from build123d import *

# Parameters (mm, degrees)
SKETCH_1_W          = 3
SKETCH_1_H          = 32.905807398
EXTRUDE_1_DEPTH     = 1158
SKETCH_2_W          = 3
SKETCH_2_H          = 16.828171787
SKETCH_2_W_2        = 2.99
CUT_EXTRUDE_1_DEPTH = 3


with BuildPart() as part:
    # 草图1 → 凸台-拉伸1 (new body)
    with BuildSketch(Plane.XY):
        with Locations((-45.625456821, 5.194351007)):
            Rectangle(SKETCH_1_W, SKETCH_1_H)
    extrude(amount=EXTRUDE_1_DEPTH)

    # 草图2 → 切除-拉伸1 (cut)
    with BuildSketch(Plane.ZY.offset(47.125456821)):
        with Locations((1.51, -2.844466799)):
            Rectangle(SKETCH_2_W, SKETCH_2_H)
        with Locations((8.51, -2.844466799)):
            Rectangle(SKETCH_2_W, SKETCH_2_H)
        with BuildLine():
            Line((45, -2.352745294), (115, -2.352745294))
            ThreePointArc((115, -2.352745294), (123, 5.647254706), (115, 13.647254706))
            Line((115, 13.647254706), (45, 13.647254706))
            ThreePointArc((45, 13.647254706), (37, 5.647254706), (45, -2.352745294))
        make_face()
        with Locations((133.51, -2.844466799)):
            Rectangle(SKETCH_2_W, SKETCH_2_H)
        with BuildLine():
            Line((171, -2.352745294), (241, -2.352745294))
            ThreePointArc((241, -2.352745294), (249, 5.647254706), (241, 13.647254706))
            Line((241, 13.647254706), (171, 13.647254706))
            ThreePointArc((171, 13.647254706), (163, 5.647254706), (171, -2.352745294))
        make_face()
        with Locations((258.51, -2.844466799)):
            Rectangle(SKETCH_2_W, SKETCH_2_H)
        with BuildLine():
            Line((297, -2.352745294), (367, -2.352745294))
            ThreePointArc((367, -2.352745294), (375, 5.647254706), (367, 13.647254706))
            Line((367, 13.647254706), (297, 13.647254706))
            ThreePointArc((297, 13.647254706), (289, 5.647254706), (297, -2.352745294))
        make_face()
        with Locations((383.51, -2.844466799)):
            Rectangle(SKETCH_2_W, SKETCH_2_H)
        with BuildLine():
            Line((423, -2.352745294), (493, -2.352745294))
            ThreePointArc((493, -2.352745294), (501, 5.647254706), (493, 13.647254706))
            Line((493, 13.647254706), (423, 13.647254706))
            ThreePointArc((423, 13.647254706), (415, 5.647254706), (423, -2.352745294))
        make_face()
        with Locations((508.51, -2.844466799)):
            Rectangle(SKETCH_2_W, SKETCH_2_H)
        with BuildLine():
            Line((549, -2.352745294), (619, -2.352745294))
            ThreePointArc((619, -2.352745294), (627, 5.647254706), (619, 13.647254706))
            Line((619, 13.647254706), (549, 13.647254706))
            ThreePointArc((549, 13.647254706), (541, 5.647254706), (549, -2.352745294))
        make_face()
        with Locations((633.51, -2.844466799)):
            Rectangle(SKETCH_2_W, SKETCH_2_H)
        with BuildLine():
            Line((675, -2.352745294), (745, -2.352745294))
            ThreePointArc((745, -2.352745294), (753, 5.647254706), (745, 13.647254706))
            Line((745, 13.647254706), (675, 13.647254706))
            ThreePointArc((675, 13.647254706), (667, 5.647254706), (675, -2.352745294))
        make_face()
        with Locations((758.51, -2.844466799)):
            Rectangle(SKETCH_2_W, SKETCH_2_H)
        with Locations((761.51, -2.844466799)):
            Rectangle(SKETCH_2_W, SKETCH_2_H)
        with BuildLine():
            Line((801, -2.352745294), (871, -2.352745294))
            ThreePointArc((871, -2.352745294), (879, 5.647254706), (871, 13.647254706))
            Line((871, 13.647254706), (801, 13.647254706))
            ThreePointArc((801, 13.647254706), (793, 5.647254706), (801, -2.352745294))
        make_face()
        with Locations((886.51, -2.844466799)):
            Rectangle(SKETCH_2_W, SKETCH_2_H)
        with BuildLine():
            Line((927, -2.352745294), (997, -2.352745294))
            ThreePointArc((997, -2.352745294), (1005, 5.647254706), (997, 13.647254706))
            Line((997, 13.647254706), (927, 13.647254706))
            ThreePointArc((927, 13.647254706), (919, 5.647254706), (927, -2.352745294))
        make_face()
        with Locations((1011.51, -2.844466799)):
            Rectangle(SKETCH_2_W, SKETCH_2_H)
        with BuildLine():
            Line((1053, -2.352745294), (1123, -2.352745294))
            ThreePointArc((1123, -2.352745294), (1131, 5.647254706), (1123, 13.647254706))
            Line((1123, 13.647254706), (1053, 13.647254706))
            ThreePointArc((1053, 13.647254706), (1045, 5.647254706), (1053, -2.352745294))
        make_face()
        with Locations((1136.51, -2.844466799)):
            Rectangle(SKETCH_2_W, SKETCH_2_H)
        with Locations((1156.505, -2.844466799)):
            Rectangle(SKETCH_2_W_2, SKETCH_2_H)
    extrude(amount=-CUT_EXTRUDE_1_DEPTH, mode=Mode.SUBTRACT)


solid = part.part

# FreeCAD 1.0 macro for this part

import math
import FreeCAD as App
import Part
import Sketcher

doc = App.newDocument("Part")
params = doc.addObject("Spreadsheet::Sheet", "Params")
for row, (alias, value) in enumerate([
    ("sketch1_width", "3 mm"),
    ("pad1_length", "1158 mm"),
    ("sketch2_radius", "8 mm"),
    ("sketch2_height", "3 mm"),
    ("sketch2_height2", "70 mm"),
    ("sketch2_height3", "6 mm"),
    ("sketch2_height4", "2.99 mm"),
    ("pocket1_length", "3 mm"),
], start=1):
    params.set(f"A{row}", alias)
    params.set(f"B{row}", "=" + value)
    params.setAlias(f"B{row}", alias)

body = doc.addObject("PartDesign::Body", "Body")

# Sketch on XY plane
sketch1 = body.newObject("Sketcher::SketchObject", "Sketch")
sketch1.AttachmentSupport = (doc.getObject("XY_Plane"), [""])
sketch1.MapMode = "FlatFace"
sketch1.addGeometry(Part.LineSegment(App.Vector(-47.1, 21.6, 0), App.Vector(-47.1, -11.3, 0)), False)
sketch1.addGeometry(Part.LineSegment(App.Vector(-47.1, -11.3, 0), App.Vector(-44.1, -11.3, 0)), False)
sketch1.addGeometry(Part.LineSegment(App.Vector(-44.1, -11.3, 0), App.Vector(-44.1, 21.6, 0)), False)
sketch1.addGeometry(Part.LineSegment(App.Vector(-44.1, 21.6, 0), App.Vector(-47.1, 21.6, 0)), False)
sketch1.addConstraint(Sketcher.Constraint("Coincident", 0, 2, 1, 1))
sketch1.addConstraint(Sketcher.Constraint("Coincident", 1, 2, 2, 1))
sketch1.addConstraint(Sketcher.Constraint("Coincident", 2, 2, 3, 1))
sketch1.addConstraint(Sketcher.Constraint("Coincident", 3, 2, 0, 1))
sketch1.addConstraint(Sketcher.Constraint("Vertical", 0))
sketch1.addConstraint(Sketcher.Constraint("Horizontal", 1))
sketch1.addConstraint(Sketcher.Constraint("Vertical", 2))
sketch1.addConstraint(Sketcher.Constraint("Horizontal", 3))
sketch1.addConstraint(Sketcher.Constraint("DistanceX", 1, 1, 1, 2, 3.0))
sketch1.addConstraint(Sketcher.Constraint("DistanceY", 0, 2, 0, 1, 32.905807))
sketch1.addConstraint(Sketcher.Constraint("DistanceX", 0, 2, -1, 1, 47.125457))
sketch1.addConstraint(Sketcher.Constraint("DistanceY", 0, 2, -1, 1, 11.258553))
sketch1.setExpression("Constraints[8]", "Params.sketch1_width")
pad1 = body.newObject("PartDesign::Pad", "Pad")
pad1.Profile = sketch1
pad1.setExpression("Length", "Params.pad1_length")

# Sketch on YZ plane
sketch2 = body.newObject("Sketcher::SketchObject", "Sketch001")
sketch2.AttachmentSupport = (doc.getObject("YZ_Plane"), [""])
sketch2.MapMode = "FlatFace"
sketch2.AttachmentOffset = App.Placement(App.Vector(0, 0, -47.125457), App.Rotation())
sketch2.addGeometry(Part.LineSegment(App.Vector(5.6, 0, 0), App.Vector(-11.3, 0, 0)), False)
sketch2.addGeometry(Part.LineSegment(App.Vector(-11.3, 0, 0), App.Vector(-11.3, 3, 0)), False)
sketch2.addGeometry(Part.LineSegment(App.Vector(-11.3, 3, 0), App.Vector(5.6, 3, 0)), False)
sketch2.addGeometry(Part.LineSegment(App.Vector(5.6, 3, 0), App.Vector(5.6, 0, 0)), False)
sketch2.addGeometry(Part.LineSegment(App.Vector(5.6, 7, 0), App.Vector(-11.3, 7, 0)), False)
sketch2.addGeometry(Part.LineSegment(App.Vector(-11.3, 7, 0), App.Vector(-11.3, 10, 0)), False)
sketch2.addGeometry(Part.LineSegment(App.Vector(-11.3, 10, 0), App.Vector(5.6, 10, 0)), False)
sketch2.addGeometry(Part.LineSegment(App.Vector(5.6, 10, 0), App.Vector(5.6, 7, 0)), False)
sketch2.addGeometry(Part.LineSegment(App.Vector(-2.4, 45, 0), App.Vector(-2.4, 115, 0)), False)
sketch2.addGeometry(Part.ArcOfCircle(Part.Circle(App.Vector(5.6, 115, 0), App.Vector(0, 0, 1), 8), math.radians(0), math.radians(180)), False)
sketch2.addGeometry(Part.LineSegment(App.Vector(13.6, 115, 0), App.Vector(13.6, 45, 0)), False)
sketch2.addGeometry(Part.ArcOfCircle(Part.Circle(App.Vector(5.6, 45, 0), App.Vector(0, 0, 1), 8), math.radians(180), math.radians(360)), False)
sketch2.addGeometry(Part.LineSegment(App.Vector(5.6, 132, 0), App.Vector(-11.3, 132, 0)), False)
sketch2.addGeometry(Part.LineSegment(App.Vector(-11.3, 132, 0), App.Vector(-11.3, 135, 0)), False)
sketch2.addGeometry(Part.LineSegment(App.Vector(-11.3, 135, 0), App.Vector(5.6, 135, 0)), False)
sketch2.addGeometry(Part.LineSegment(App.Vector(5.6, 135, 0), App.Vector(5.6, 132, 0)), False)
sketch2.addGeometry(Part.LineSegment(App.Vector(-2.4, 171, 0), App.Vector(-2.4, 241, 0)), False)
sketch2.addGeometry(Part.ArcOfCircle(Part.Circle(App.Vector(5.6, 241, 0), App.Vector(0, 0, 1), 8), math.radians(0), math.radians(180)), False)
sketch2.addGeometry(Part.LineSegment(App.Vector(13.6, 241, 0), App.Vector(13.6, 171, 0)), False)
sketch2.addGeometry(Part.ArcOfCircle(Part.Circle(App.Vector(5.6, 171, 0), App.Vector(0, 0, 1), 8), math.radians(180), math.radians(360)), False)
sketch2.addGeometry(Part.LineSegment(App.Vector(5.6, 257, 0), App.Vector(-11.3, 257, 0)), False)
sketch2.addGeometry(Part.LineSegment(App.Vector(-11.3, 257, 0), App.Vector(-11.3, 260, 0)), False)
sketch2.addGeometry(Part.LineSegment(App.Vector(-11.3, 260, 0), App.Vector(5.6, 260, 0)), False)
sketch2.addGeometry(Part.LineSegment(App.Vector(5.6, 260, 0), App.Vector(5.6, 257, 0)), False)
sketch2.addGeometry(Part.LineSegment(App.Vector(-2.4, 297, 0), App.Vector(-2.4, 367, 0)), False)
sketch2.addGeometry(Part.ArcOfCircle(Part.Circle(App.Vector(5.6, 367, 0), App.Vector(0, 0, 1), 8), math.radians(0), math.radians(180)), False)
sketch2.addGeometry(Part.LineSegment(App.Vector(13.6, 367, 0), App.Vector(13.6, 297, 0)), False)
sketch2.addGeometry(Part.ArcOfCircle(Part.Circle(App.Vector(5.6, 297, 0), App.Vector(0, 0, 1), 8), math.radians(180), math.radians(360)), False)
sketch2.addGeometry(Part.LineSegment(App.Vector(5.6, 382, 0), App.Vector(-11.3, 382, 0)), False)
sketch2.addGeometry(Part.LineSegment(App.Vector(-11.3, 382, 0), App.Vector(-11.3, 385, 0)), False)
sketch2.addGeometry(Part.LineSegment(App.Vector(-11.3, 385, 0), App.Vector(5.6, 385, 0)), False)
sketch2.addGeometry(Part.LineSegment(App.Vector(5.6, 385, 0), App.Vector(5.6, 382, 0)), False)
sketch2.addGeometry(Part.LineSegment(App.Vector(-2.4, 423, 0), App.Vector(-2.4, 493, 0)), False)
sketch2.addGeometry(Part.ArcOfCircle(Part.Circle(App.Vector(5.6, 493, 0), App.Vector(0, 0, 1), 8), math.radians(0), math.radians(180)), False)
sketch2.addGeometry(Part.LineSegment(App.Vector(13.6, 493, 0), App.Vector(13.6, 423, 0)), False)
sketch2.addGeometry(Part.ArcOfCircle(Part.Circle(App.Vector(5.6, 423, 0), App.Vector(0, 0, 1), 8), math.radians(180), math.radians(360)), False)
sketch2.addGeometry(Part.LineSegment(App.Vector(5.6, 507, 0), App.Vector(-11.3, 507, 0)), False)
sketch2.addGeometry(Part.LineSegment(App.Vector(-11.3, 507, 0), App.Vector(-11.3, 510, 0)), False)
sketch2.addGeometry(Part.LineSegment(App.Vector(-11.3, 510, 0), App.Vector(5.6, 510, 0)), False)
sketch2.addGeometry(Part.LineSegment(App.Vector(5.6, 510, 0), App.Vector(5.6, 507, 0)), False)
sketch2.addGeometry(Part.LineSegment(App.Vector(-2.4, 549, 0), App.Vector(-2.4, 619, 0)), False)
sketch2.addGeometry(Part.ArcOfCircle(Part.Circle(App.Vector(5.6, 619, 0), App.Vector(0, 0, 1), 8), math.radians(0), math.radians(180)), False)
sketch2.addGeometry(Part.LineSegment(App.Vector(13.6, 619, 0), App.Vector(13.6, 549, 0)), False)
sketch2.addGeometry(Part.ArcOfCircle(Part.Circle(App.Vector(5.6, 549, 0), App.Vector(0, 0, 1), 8), math.radians(180), math.radians(360)), False)
sketch2.addGeometry(Part.LineSegment(App.Vector(5.6, 632, 0), App.Vector(-11.3, 632, 0)), False)
sketch2.addGeometry(Part.LineSegment(App.Vector(-11.3, 632, 0), App.Vector(-11.3, 635, 0)), False)
sketch2.addGeometry(Part.LineSegment(App.Vector(-11.3, 635, 0), App.Vector(5.6, 635, 0)), False)
sketch2.addGeometry(Part.LineSegment(App.Vector(5.6, 635, 0), App.Vector(5.6, 632, 0)), False)
sketch2.addGeometry(Part.LineSegment(App.Vector(-2.4, 675, 0), App.Vector(-2.4, 745, 0)), False)
sketch2.addGeometry(Part.ArcOfCircle(Part.Circle(App.Vector(5.6, 745, 0), App.Vector(0, 0, 1), 8), math.radians(0), math.radians(180)), False)
sketch2.addGeometry(Part.LineSegment(App.Vector(13.6, 745, 0), App.Vector(13.6, 675, 0)), False)
sketch2.addGeometry(Part.ArcOfCircle(Part.Circle(App.Vector(5.6, 675, 0), App.Vector(0, 0, 1), 8), math.radians(180), math.radians(360)), False)
sketch2.addGeometry(Part.LineSegment(App.Vector(5.6, 757, 0), App.Vector(-11.3, 757, 0)), False)
sketch2.addGeometry(Part.LineSegment(App.Vector(-11.3, 757, 0), App.Vector(-11.3, 763, 0)), False)
sketch2.addGeometry(Part.LineSegment(App.Vector(-11.3, 763, 0), App.Vector(5.6, 763, 0)), False)
sketch2.addGeometry(Part.LineSegment(App.Vector(5.6, 763, 0), App.Vector(5.6, 757, 0)), False)
sketch2.addGeometry(Part.LineSegment(App.Vector(-2.4, 801, 0), App.Vector(-2.4, 871, 0)), False)
sketch2.addGeometry(Part.ArcOfCircle(Part.Circle(App.Vector(5.6, 871, 0), App.Vector(0, 0, 1), 8), math.radians(0), math.radians(180)), False)
sketch2.addGeometry(Part.LineSegment(App.Vector(13.6, 871, 0), App.Vector(13.6, 801, 0)), False)
sketch2.addGeometry(Part.ArcOfCircle(Part.Circle(App.Vector(5.6, 801, 0), App.Vector(0, 0, 1), 8), math.radians(180), math.radians(360)), False)
sketch2.addGeometry(Part.LineSegment(App.Vector(5.6, 885, 0), App.Vector(-11.3, 885, 0)), False)
sketch2.addGeometry(Part.LineSegment(App.Vector(-11.3, 885, 0), App.Vector(-11.3, 888, 0)), False)
sketch2.addGeometry(Part.LineSegment(App.Vector(-11.3, 888, 0), App.Vector(5.6, 888, 0)), False)
sketch2.addGeometry(Part.LineSegment(App.Vector(5.6, 888, 0), App.Vector(5.6, 885, 0)), False)
sketch2.addGeometry(Part.LineSegment(App.Vector(-2.4, 927, 0), App.Vector(-2.4, 997, 0)), False)
sketch2.addGeometry(Part.ArcOfCircle(Part.Circle(App.Vector(5.6, 997, 0), App.Vector(0, 0, 1), 8), math.radians(0), math.radians(180)), False)
sketch2.addGeometry(Part.LineSegment(App.Vector(13.6, 997, 0), App.Vector(13.6, 927, 0)), False)
sketch2.addGeometry(Part.ArcOfCircle(Part.Circle(App.Vector(5.6, 927, 0), App.Vector(0, 0, 1), 8), math.radians(180), math.radians(360)), False)
sketch2.addGeometry(Part.LineSegment(App.Vector(5.6, 1010, 0), App.Vector(-11.3, 1010, 0)), False)
sketch2.addGeometry(Part.LineSegment(App.Vector(-11.3, 1010, 0), App.Vector(-11.3, 1013, 0)), False)
sketch2.addGeometry(Part.LineSegment(App.Vector(-11.3, 1013, 0), App.Vector(5.6, 1013, 0)), False)
sketch2.addGeometry(Part.LineSegment(App.Vector(5.6, 1013, 0), App.Vector(5.6, 1010, 0)), False)
sketch2.addGeometry(Part.LineSegment(App.Vector(-2.4, 1053, 0), App.Vector(-2.4, 1123, 0)), False)
sketch2.addGeometry(Part.ArcOfCircle(Part.Circle(App.Vector(5.6, 1123, 0), App.Vector(0, 0, 1), 8), math.radians(0), math.radians(180)), False)
sketch2.addGeometry(Part.LineSegment(App.Vector(13.6, 1123, 0), App.Vector(13.6, 1053, 0)), False)
sketch2.addGeometry(Part.ArcOfCircle(Part.Circle(App.Vector(5.6, 1053, 0), App.Vector(0, 0, 1), 8), math.radians(180), math.radians(360)), False)
sketch2.addGeometry(Part.LineSegment(App.Vector(5.6, 1135, 0), App.Vector(-11.3, 1135, 0)), False)
sketch2.addGeometry(Part.LineSegment(App.Vector(-11.3, 1135, 0), App.Vector(-11.3, 1138, 0)), False)
sketch2.addGeometry(Part.LineSegment(App.Vector(-11.3, 1138, 0), App.Vector(5.6, 1138, 0)), False)
sketch2.addGeometry(Part.LineSegment(App.Vector(5.6, 1138, 0), App.Vector(5.6, 1135, 0)), False)
sketch2.addGeometry(Part.LineSegment(App.Vector(5.6, 1155, 0), App.Vector(-11.3, 1155, 0)), False)
sketch2.addGeometry(Part.LineSegment(App.Vector(-11.3, 1155, 0), App.Vector(-11.3, 1158, 0)), False)
sketch2.addGeometry(Part.LineSegment(App.Vector(-11.3, 1158, 0), App.Vector(5.6, 1158, 0)), False)
sketch2.addGeometry(Part.LineSegment(App.Vector(5.6, 1158, 0), App.Vector(5.6, 1155, 0)), False)
sketch2.addConstraint(Sketcher.Constraint("Coincident", 0, 2, 1, 1))
sketch2.addConstraint(Sketcher.Constraint("Coincident", 1, 2, 2, 1))
sketch2.addConstraint(Sketcher.Constraint("Coincident", 2, 2, 3, 1))
sketch2.addConstraint(Sketcher.Constraint("Coincident", 3, 2, 0, 1))
sketch2.addConstraint(Sketcher.Constraint("Coincident", 4, 2, 5, 1))
sketch2.addConstraint(Sketcher.Constraint("Coincident", 5, 2, 6, 1))
sketch2.addConstraint(Sketcher.Constraint("Coincident", 6, 2, 7, 1))
sketch2.addConstraint(Sketcher.Constraint("Coincident", 7, 2, 4, 1))
sketch2.addConstraint(Sketcher.Constraint("Tangent", 8, 2, 9, 2))
sketch2.addConstraint(Sketcher.Constraint("Tangent", 9, 1, 10, 1))
sketch2.addConstraint(Sketcher.Constraint("Tangent", 10, 2, 11, 2))
sketch2.addConstraint(Sketcher.Constraint("Tangent", 11, 1, 8, 1))
sketch2.addConstraint(Sketcher.Constraint("Coincident", 12, 2, 13, 1))
sketch2.addConstraint(Sketcher.Constraint("Coincident", 13, 2, 14, 1))
sketch2.addConstraint(Sketcher.Constraint("Coincident", 14, 2, 15, 1))
sketch2.addConstraint(Sketcher.Constraint("Coincident", 15, 2, 12, 1))
sketch2.addConstraint(Sketcher.Constraint("Tangent", 16, 2, 17, 2))
sketch2.addConstraint(Sketcher.Constraint("Tangent", 17, 1, 18, 1))
sketch2.addConstraint(Sketcher.Constraint("Tangent", 18, 2, 19, 2))
sketch2.addConstraint(Sketcher.Constraint("Tangent", 19, 1, 16, 1))
sketch2.addConstraint(Sketcher.Constraint("Coincident", 20, 2, 21, 1))
sketch2.addConstraint(Sketcher.Constraint("Coincident", 21, 2, 22, 1))
sketch2.addConstraint(Sketcher.Constraint("Coincident", 22, 2, 23, 1))
sketch2.addConstraint(Sketcher.Constraint("Coincident", 23, 2, 20, 1))
sketch2.addConstraint(Sketcher.Constraint("Tangent", 24, 2, 25, 2))
sketch2.addConstraint(Sketcher.Constraint("Tangent", 25, 1, 26, 1))
sketch2.addConstraint(Sketcher.Constraint("Tangent", 26, 2, 27, 2))
sketch2.addConstraint(Sketcher.Constraint("Tangent", 27, 1, 24, 1))
sketch2.addConstraint(Sketcher.Constraint("Coincident", 28, 2, 29, 1))
sketch2.addConstraint(Sketcher.Constraint("Coincident", 29, 2, 30, 1))
sketch2.addConstraint(Sketcher.Constraint("Coincident", 30, 2, 31, 1))
sketch2.addConstraint(Sketcher.Constraint("Coincident", 31, 2, 28, 1))
sketch2.addConstraint(Sketcher.Constraint("Tangent", 32, 2, 33, 2))
sketch2.addConstraint(Sketcher.Constraint("Tangent", 33, 1, 34, 1))
sketch2.addConstraint(Sketcher.Constraint("Tangent", 34, 2, 35, 2))
sketch2.addConstraint(Sketcher.Constraint("Tangent", 35, 1, 32, 1))
sketch2.addConstraint(Sketcher.Constraint("Coincident", 36, 2, 37, 1))
sketch2.addConstraint(Sketcher.Constraint("Coincident", 37, 2, 38, 1))
sketch2.addConstraint(Sketcher.Constraint("Coincident", 38, 2, 39, 1))
sketch2.addConstraint(Sketcher.Constraint("Coincident", 39, 2, 36, 1))
sketch2.addConstraint(Sketcher.Constraint("Tangent", 40, 2, 41, 2))
sketch2.addConstraint(Sketcher.Constraint("Tangent", 41, 1, 42, 1))
sketch2.addConstraint(Sketcher.Constraint("Tangent", 42, 2, 43, 2))
sketch2.addConstraint(Sketcher.Constraint("Tangent", 43, 1, 40, 1))
sketch2.addConstraint(Sketcher.Constraint("Coincident", 44, 2, 45, 1))
sketch2.addConstraint(Sketcher.Constraint("Coincident", 45, 2, 46, 1))
sketch2.addConstraint(Sketcher.Constraint("Coincident", 46, 2, 47, 1))
sketch2.addConstraint(Sketcher.Constraint("Coincident", 47, 2, 44, 1))
sketch2.addConstraint(Sketcher.Constraint("Tangent", 48, 2, 49, 2))
sketch2.addConstraint(Sketcher.Constraint("Tangent", 49, 1, 50, 1))
sketch2.addConstraint(Sketcher.Constraint("Tangent", 50, 2, 51, 2))
sketch2.addConstraint(Sketcher.Constraint("Tangent", 51, 1, 48, 1))
sketch2.addConstraint(Sketcher.Constraint("Coincident", 52, 2, 53, 1))
sketch2.addConstraint(Sketcher.Constraint("Coincident", 53, 2, 54, 1))
sketch2.addConstraint(Sketcher.Constraint("Coincident", 54, 2, 55, 1))
sketch2.addConstraint(Sketcher.Constraint("Coincident", 55, 2, 52, 1))
sketch2.addConstraint(Sketcher.Constraint("Tangent", 56, 2, 57, 2))
sketch2.addConstraint(Sketcher.Constraint("Tangent", 57, 1, 58, 1))
sketch2.addConstraint(Sketcher.Constraint("Tangent", 58, 2, 59, 2))
sketch2.addConstraint(Sketcher.Constraint("Tangent", 59, 1, 56, 1))
sketch2.addConstraint(Sketcher.Constraint("Coincident", 60, 2, 61, 1))
sketch2.addConstraint(Sketcher.Constraint("Coincident", 61, 2, 62, 1))
sketch2.addConstraint(Sketcher.Constraint("Coincident", 62, 2, 63, 1))
sketch2.addConstraint(Sketcher.Constraint("Coincident", 63, 2, 60, 1))
sketch2.addConstraint(Sketcher.Constraint("Tangent", 64, 2, 65, 2))
sketch2.addConstraint(Sketcher.Constraint("Tangent", 65, 1, 66, 1))
sketch2.addConstraint(Sketcher.Constraint("Tangent", 66, 2, 67, 2))
sketch2.addConstraint(Sketcher.Constraint("Tangent", 67, 1, 64, 1))
sketch2.addConstraint(Sketcher.Constraint("Coincident", 68, 2, 69, 1))
sketch2.addConstraint(Sketcher.Constraint("Coincident", 69, 2, 70, 1))
sketch2.addConstraint(Sketcher.Constraint("Coincident", 70, 2, 71, 1))
sketch2.addConstraint(Sketcher.Constraint("Coincident", 71, 2, 68, 1))
sketch2.addConstraint(Sketcher.Constraint("Tangent", 72, 2, 73, 2))
sketch2.addConstraint(Sketcher.Constraint("Tangent", 73, 1, 74, 1))
sketch2.addConstraint(Sketcher.Constraint("Tangent", 74, 2, 75, 2))
sketch2.addConstraint(Sketcher.Constraint("Tangent", 75, 1, 72, 1))
sketch2.addConstraint(Sketcher.Constraint("Coincident", 76, 2, 77, 1))
sketch2.addConstraint(Sketcher.Constraint("Coincident", 77, 2, 78, 1))
sketch2.addConstraint(Sketcher.Constraint("Coincident", 78, 2, 79, 1))
sketch2.addConstraint(Sketcher.Constraint("Coincident", 79, 2, 76, 1))
sketch2.addConstraint(Sketcher.Constraint("Coincident", 80, 2, 81, 1))
sketch2.addConstraint(Sketcher.Constraint("Coincident", 81, 2, 82, 1))
sketch2.addConstraint(Sketcher.Constraint("Coincident", 82, 2, 83, 1))
sketch2.addConstraint(Sketcher.Constraint("Coincident", 83, 2, 80, 1))
sketch2.addConstraint(Sketcher.Constraint("Horizontal", 0))
sketch2.addConstraint(Sketcher.Constraint("Vertical", 1))
sketch2.addConstraint(Sketcher.Constraint("Horizontal", 2))
sketch2.addConstraint(Sketcher.Constraint("Vertical", 3))
sketch2.addConstraint(Sketcher.Constraint("Horizontal", 4))
sketch2.addConstraint(Sketcher.Constraint("Vertical", 5))
sketch2.addConstraint(Sketcher.Constraint("Horizontal", 6))
sketch2.addConstraint(Sketcher.Constraint("Vertical", 7))
sketch2.addConstraint(Sketcher.Constraint("Vertical", 8))
sketch2.addConstraint(Sketcher.Constraint("Vertical", 10))
sketch2.addConstraint(Sketcher.Constraint("Horizontal", 12))
sketch2.addConstraint(Sketcher.Constraint("Vertical", 13))
sketch2.addConstraint(Sketcher.Constraint("Horizontal", 14))
sketch2.addConstraint(Sketcher.Constraint("Vertical", 15))
sketch2.addConstraint(Sketcher.Constraint("Vertical", 16))
sketch2.addConstraint(Sketcher.Constraint("Vertical", 18))
sketch2.addConstraint(Sketcher.Constraint("Horizontal", 20))
sketch2.addConstraint(Sketcher.Constraint("Vertical", 21))
sketch2.addConstraint(Sketcher.Constraint("Horizontal", 22))
sketch2.addConstraint(Sketcher.Constraint("Vertical", 23))
sketch2.addConstraint(Sketcher.Constraint("Vertical", 24))
sketch2.addConstraint(Sketcher.Constraint("Vertical", 26))
sketch2.addConstraint(Sketcher.Constraint("Horizontal", 28))
sketch2.addConstraint(Sketcher.Constraint("Vertical", 29))
sketch2.addConstraint(Sketcher.Constraint("Horizontal", 30))
sketch2.addConstraint(Sketcher.Constraint("Vertical", 31))
sketch2.addConstraint(Sketcher.Constraint("Vertical", 32))
sketch2.addConstraint(Sketcher.Constraint("Vertical", 34))
sketch2.addConstraint(Sketcher.Constraint("Horizontal", 36))
sketch2.addConstraint(Sketcher.Constraint("Vertical", 37))
sketch2.addConstraint(Sketcher.Constraint("Horizontal", 38))
sketch2.addConstraint(Sketcher.Constraint("Vertical", 39))
sketch2.addConstraint(Sketcher.Constraint("Vertical", 40))
sketch2.addConstraint(Sketcher.Constraint("Vertical", 42))
sketch2.addConstraint(Sketcher.Constraint("Horizontal", 44))
sketch2.addConstraint(Sketcher.Constraint("Vertical", 45))
sketch2.addConstraint(Sketcher.Constraint("Horizontal", 46))
sketch2.addConstraint(Sketcher.Constraint("Vertical", 47))
sketch2.addConstraint(Sketcher.Constraint("Vertical", 48))
sketch2.addConstraint(Sketcher.Constraint("Vertical", 50))
sketch2.addConstraint(Sketcher.Constraint("Horizontal", 52))
sketch2.addConstraint(Sketcher.Constraint("Vertical", 53))
sketch2.addConstraint(Sketcher.Constraint("Horizontal", 54))
sketch2.addConstraint(Sketcher.Constraint("Vertical", 55))
sketch2.addConstraint(Sketcher.Constraint("Vertical", 56))
sketch2.addConstraint(Sketcher.Constraint("Vertical", 58))
sketch2.addConstraint(Sketcher.Constraint("Horizontal", 60))
sketch2.addConstraint(Sketcher.Constraint("Vertical", 61))
sketch2.addConstraint(Sketcher.Constraint("Horizontal", 62))
sketch2.addConstraint(Sketcher.Constraint("Vertical", 63))
sketch2.addConstraint(Sketcher.Constraint("Vertical", 64))
sketch2.addConstraint(Sketcher.Constraint("Vertical", 66))
sketch2.addConstraint(Sketcher.Constraint("Horizontal", 68))
sketch2.addConstraint(Sketcher.Constraint("Vertical", 69))
sketch2.addConstraint(Sketcher.Constraint("Horizontal", 70))
sketch2.addConstraint(Sketcher.Constraint("Vertical", 71))
sketch2.addConstraint(Sketcher.Constraint("Vertical", 72))
sketch2.addConstraint(Sketcher.Constraint("Vertical", 74))
sketch2.addConstraint(Sketcher.Constraint("Horizontal", 76))
sketch2.addConstraint(Sketcher.Constraint("Vertical", 77))
sketch2.addConstraint(Sketcher.Constraint("Horizontal", 78))
sketch2.addConstraint(Sketcher.Constraint("Vertical", 79))
sketch2.addConstraint(Sketcher.Constraint("Horizontal", 80))
sketch2.addConstraint(Sketcher.Constraint("Vertical", 81))
sketch2.addConstraint(Sketcher.Constraint("Horizontal", 82))
sketch2.addConstraint(Sketcher.Constraint("Vertical", 83))
sketch2.addConstraint(Sketcher.Constraint("Equal", 11, 17))
sketch2.addConstraint(Sketcher.Constraint("Equal", 19, 25))
sketch2.addConstraint(Sketcher.Constraint("Equal", 27, 33))
sketch2.addConstraint(Sketcher.Constraint("Equal", 35, 41))
sketch2.addConstraint(Sketcher.Constraint("Equal", 43, 49))
sketch2.addConstraint(Sketcher.Constraint("Equal", 51, 57))
sketch2.addConstraint(Sketcher.Constraint("Equal", 59, 65))
sketch2.addConstraint(Sketcher.Constraint("Equal", 67, 73))
sketch2.addConstraint(Sketcher.Constraint("Vertical", 11, 3, 17, 3))
sketch2.addConstraint(Sketcher.Constraint("Vertical", 19, 3, 25, 3))
sketch2.addConstraint(Sketcher.Constraint("Vertical", 27, 3, 33, 3))
sketch2.addConstraint(Sketcher.Constraint("Vertical", 35, 3, 41, 3))
sketch2.addConstraint(Sketcher.Constraint("Vertical", 43, 3, 49, 3))
sketch2.addConstraint(Sketcher.Constraint("Vertical", 51, 3, 57, 3))
sketch2.addConstraint(Sketcher.Constraint("Vertical", 59, 3, 65, 3))
sketch2.addConstraint(Sketcher.Constraint("Vertical", 67, 3, 73, 3))
sketch2.addConstraint(Sketcher.Constraint("Vertical", 1, 2, 4, 2))
sketch2.addConstraint(Sketcher.Constraint("Vertical", 3, 2, 6, 2))
sketch2.addConstraint(Sketcher.Constraint("Vertical", 5, 2, 12, 2))
sketch2.addConstraint(Sketcher.Constraint("Vertical", 7, 2, 14, 2))
sketch2.addConstraint(Sketcher.Constraint("Vertical", 13, 2, 20, 2))
sketch2.addConstraint(Sketcher.Constraint("Vertical", 15, 2, 22, 2))
sketch2.addConstraint(Sketcher.Constraint("Vertical", 21, 2, 28, 2))
sketch2.addConstraint(Sketcher.Constraint("Vertical", 23, 2, 30, 2))
sketch2.addConstraint(Sketcher.Constraint("Vertical", 29, 2, 36, 2))
sketch2.addConstraint(Sketcher.Constraint("Vertical", 31, 2, 38, 2))
sketch2.addConstraint(Sketcher.Constraint("Vertical", 37, 2, 44, 2))
sketch2.addConstraint(Sketcher.Constraint("Vertical", 39, 2, 46, 2))
sketch2.addConstraint(Sketcher.Constraint("Vertical", 45, 2, 52, 2))
sketch2.addConstraint(Sketcher.Constraint("Vertical", 47, 2, 54, 2))
sketch2.addConstraint(Sketcher.Constraint("Vertical", 53, 2, 60, 2))
sketch2.addConstraint(Sketcher.Constraint("Vertical", 55, 2, 62, 2))
sketch2.addConstraint(Sketcher.Constraint("Vertical", 61, 2, 68, 2))
sketch2.addConstraint(Sketcher.Constraint("Vertical", 63, 2, 70, 2))
sketch2.addConstraint(Sketcher.Constraint("Vertical", 69, 2, 76, 2))
sketch2.addConstraint(Sketcher.Constraint("Vertical", 71, 2, 78, 2))
sketch2.addConstraint(Sketcher.Constraint("Vertical", 77, 2, 80, 2))
sketch2.addConstraint(Sketcher.Constraint("Vertical", 79, 2, 82, 2))
sketch2.addConstraint(Sketcher.Constraint("Equal", 3, 5))
sketch2.addConstraint(Sketcher.Constraint("Equal", 7, 13))
sketch2.addConstraint(Sketcher.Constraint("Equal", 10, 16))
sketch2.addConstraint(Sketcher.Constraint("Equal", 15, 21))
sketch2.addConstraint(Sketcher.Constraint("Equal", 18, 24))
sketch2.addConstraint(Sketcher.Constraint("Equal", 23, 29))
sketch2.addConstraint(Sketcher.Constraint("Equal", 26, 32))
sketch2.addConstraint(Sketcher.Constraint("Equal", 31, 37))
sketch2.addConstraint(Sketcher.Constraint("Equal", 34, 40))
sketch2.addConstraint(Sketcher.Constraint("Equal", 39, 45))
sketch2.addConstraint(Sketcher.Constraint("Equal", 42, 48))
sketch2.addConstraint(Sketcher.Constraint("Equal", 50, 56))
sketch2.addConstraint(Sketcher.Constraint("Equal", 47, 61))
sketch2.addConstraint(Sketcher.Constraint("Equal", 58, 64))
sketch2.addConstraint(Sketcher.Constraint("Equal", 63, 69))
sketch2.addConstraint(Sketcher.Constraint("Equal", 66, 72))
sketch2.addConstraint(Sketcher.Constraint("Equal", 71, 77))
sketch2.addConstraint(Sketcher.Constraint("Radius", 9, 8.0))
sketch2.addConstraint(Sketcher.Constraint("DistanceY", 1, 1, 1, 2, 3.0))
sketch2.addConstraint(Sketcher.Constraint("DistanceY", 8, 1, 8, 2, 70.0))
sketch2.addConstraint(Sketcher.Constraint("DistanceY", 53, 1, 53, 2, 6.0))
sketch2.addConstraint(Sketcher.Constraint("DistanceY", -1, 1, 9, 3, 115.0))
sketch2.addConstraint(Sketcher.Constraint("DistanceY", -1, 1, 17, 3, 241.0))
sketch2.addConstraint(Sketcher.Constraint("DistanceY", -1, 1, 25, 3, 367.0))
sketch2.addConstraint(Sketcher.Constraint("DistanceY", -1, 1, 33, 3, 493.0))
sketch2.addConstraint(Sketcher.Constraint("DistanceY", -1, 1, 41, 3, 619.0))
sketch2.addConstraint(Sketcher.Constraint("DistanceY", -1, 1, 49, 3, 745.0))
sketch2.addConstraint(Sketcher.Constraint("DistanceY", -1, 1, 57, 3, 871.0))
sketch2.addConstraint(Sketcher.Constraint("DistanceY", -1, 1, 65, 3, 997.0))
sketch2.addConstraint(Sketcher.Constraint("DistanceY", -1, 1, 73, 3, 1123.0))
sketch2.addConstraint(Sketcher.Constraint("DistanceY", -1, 1, 81, 2, 1158.0))
sketch2.addConstraint(Sketcher.Constraint("DistanceY", 81, 1, 81, 2, 2.99))
sketch2.addConstraint(Sketcher.Constraint("DistanceY", -1, 1, 0, 2, 0.01))
sketch2.addConstraint(Sketcher.Constraint("DistanceY", -1, 1, 4, 2, 7.01))
sketch2.addConstraint(Sketcher.Constraint("DistanceY", -1, 1, 12, 2, 132.01))
sketch2.addConstraint(Sketcher.Constraint("DistanceY", -1, 1, 20, 2, 257.01))
sketch2.addConstraint(Sketcher.Constraint("DistanceY", -1, 1, 28, 2, 382.01))
sketch2.addConstraint(Sketcher.Constraint("DistanceY", -1, 1, 36, 2, 507.01))
sketch2.addConstraint(Sketcher.Constraint("DistanceY", -1, 1, 44, 2, 632.01))
sketch2.addConstraint(Sketcher.Constraint("DistanceY", -1, 1, 52, 2, 757.01))
sketch2.addConstraint(Sketcher.Constraint("DistanceY", -1, 1, 60, 2, 885.01))
sketch2.addConstraint(Sketcher.Constraint("DistanceY", -1, 1, 68, 2, 1010.01))
sketch2.addConstraint(Sketcher.Constraint("DistanceY", -1, 1, 76, 2, 1135.01))
sketch2.addConstraint(Sketcher.Constraint("DistanceX", 0, 2, 0, 1, 16.828172))
sketch2.addConstraint(Sketcher.Constraint("DistanceX", -1, 1, 2, 2, 5.569619))
sketch2.addConstraint(Sketcher.Constraint("DistanceX", -1, 1, 9, 3, 5.647255))
sketch2.setExpression("Constraints[205]", "Params.sketch2_radius")
sketch2.setExpression("Constraints[206]", "Params.sketch2_height")
sketch2.setExpression("Constraints[207]", "Params.sketch2_height2")
sketch2.setExpression("Constraints[208]", "Params.sketch2_height3")
sketch2.setExpression("Constraints[219]", "Params.sketch2_height4")
pocket1 = body.newObject("PartDesign::Pocket", "Pocket")
pocket1.Profile = sketch2
pocket1.setExpression("Length", "Params.pocket1_length")
pocket1.Reversed = True

doc.recompute()
